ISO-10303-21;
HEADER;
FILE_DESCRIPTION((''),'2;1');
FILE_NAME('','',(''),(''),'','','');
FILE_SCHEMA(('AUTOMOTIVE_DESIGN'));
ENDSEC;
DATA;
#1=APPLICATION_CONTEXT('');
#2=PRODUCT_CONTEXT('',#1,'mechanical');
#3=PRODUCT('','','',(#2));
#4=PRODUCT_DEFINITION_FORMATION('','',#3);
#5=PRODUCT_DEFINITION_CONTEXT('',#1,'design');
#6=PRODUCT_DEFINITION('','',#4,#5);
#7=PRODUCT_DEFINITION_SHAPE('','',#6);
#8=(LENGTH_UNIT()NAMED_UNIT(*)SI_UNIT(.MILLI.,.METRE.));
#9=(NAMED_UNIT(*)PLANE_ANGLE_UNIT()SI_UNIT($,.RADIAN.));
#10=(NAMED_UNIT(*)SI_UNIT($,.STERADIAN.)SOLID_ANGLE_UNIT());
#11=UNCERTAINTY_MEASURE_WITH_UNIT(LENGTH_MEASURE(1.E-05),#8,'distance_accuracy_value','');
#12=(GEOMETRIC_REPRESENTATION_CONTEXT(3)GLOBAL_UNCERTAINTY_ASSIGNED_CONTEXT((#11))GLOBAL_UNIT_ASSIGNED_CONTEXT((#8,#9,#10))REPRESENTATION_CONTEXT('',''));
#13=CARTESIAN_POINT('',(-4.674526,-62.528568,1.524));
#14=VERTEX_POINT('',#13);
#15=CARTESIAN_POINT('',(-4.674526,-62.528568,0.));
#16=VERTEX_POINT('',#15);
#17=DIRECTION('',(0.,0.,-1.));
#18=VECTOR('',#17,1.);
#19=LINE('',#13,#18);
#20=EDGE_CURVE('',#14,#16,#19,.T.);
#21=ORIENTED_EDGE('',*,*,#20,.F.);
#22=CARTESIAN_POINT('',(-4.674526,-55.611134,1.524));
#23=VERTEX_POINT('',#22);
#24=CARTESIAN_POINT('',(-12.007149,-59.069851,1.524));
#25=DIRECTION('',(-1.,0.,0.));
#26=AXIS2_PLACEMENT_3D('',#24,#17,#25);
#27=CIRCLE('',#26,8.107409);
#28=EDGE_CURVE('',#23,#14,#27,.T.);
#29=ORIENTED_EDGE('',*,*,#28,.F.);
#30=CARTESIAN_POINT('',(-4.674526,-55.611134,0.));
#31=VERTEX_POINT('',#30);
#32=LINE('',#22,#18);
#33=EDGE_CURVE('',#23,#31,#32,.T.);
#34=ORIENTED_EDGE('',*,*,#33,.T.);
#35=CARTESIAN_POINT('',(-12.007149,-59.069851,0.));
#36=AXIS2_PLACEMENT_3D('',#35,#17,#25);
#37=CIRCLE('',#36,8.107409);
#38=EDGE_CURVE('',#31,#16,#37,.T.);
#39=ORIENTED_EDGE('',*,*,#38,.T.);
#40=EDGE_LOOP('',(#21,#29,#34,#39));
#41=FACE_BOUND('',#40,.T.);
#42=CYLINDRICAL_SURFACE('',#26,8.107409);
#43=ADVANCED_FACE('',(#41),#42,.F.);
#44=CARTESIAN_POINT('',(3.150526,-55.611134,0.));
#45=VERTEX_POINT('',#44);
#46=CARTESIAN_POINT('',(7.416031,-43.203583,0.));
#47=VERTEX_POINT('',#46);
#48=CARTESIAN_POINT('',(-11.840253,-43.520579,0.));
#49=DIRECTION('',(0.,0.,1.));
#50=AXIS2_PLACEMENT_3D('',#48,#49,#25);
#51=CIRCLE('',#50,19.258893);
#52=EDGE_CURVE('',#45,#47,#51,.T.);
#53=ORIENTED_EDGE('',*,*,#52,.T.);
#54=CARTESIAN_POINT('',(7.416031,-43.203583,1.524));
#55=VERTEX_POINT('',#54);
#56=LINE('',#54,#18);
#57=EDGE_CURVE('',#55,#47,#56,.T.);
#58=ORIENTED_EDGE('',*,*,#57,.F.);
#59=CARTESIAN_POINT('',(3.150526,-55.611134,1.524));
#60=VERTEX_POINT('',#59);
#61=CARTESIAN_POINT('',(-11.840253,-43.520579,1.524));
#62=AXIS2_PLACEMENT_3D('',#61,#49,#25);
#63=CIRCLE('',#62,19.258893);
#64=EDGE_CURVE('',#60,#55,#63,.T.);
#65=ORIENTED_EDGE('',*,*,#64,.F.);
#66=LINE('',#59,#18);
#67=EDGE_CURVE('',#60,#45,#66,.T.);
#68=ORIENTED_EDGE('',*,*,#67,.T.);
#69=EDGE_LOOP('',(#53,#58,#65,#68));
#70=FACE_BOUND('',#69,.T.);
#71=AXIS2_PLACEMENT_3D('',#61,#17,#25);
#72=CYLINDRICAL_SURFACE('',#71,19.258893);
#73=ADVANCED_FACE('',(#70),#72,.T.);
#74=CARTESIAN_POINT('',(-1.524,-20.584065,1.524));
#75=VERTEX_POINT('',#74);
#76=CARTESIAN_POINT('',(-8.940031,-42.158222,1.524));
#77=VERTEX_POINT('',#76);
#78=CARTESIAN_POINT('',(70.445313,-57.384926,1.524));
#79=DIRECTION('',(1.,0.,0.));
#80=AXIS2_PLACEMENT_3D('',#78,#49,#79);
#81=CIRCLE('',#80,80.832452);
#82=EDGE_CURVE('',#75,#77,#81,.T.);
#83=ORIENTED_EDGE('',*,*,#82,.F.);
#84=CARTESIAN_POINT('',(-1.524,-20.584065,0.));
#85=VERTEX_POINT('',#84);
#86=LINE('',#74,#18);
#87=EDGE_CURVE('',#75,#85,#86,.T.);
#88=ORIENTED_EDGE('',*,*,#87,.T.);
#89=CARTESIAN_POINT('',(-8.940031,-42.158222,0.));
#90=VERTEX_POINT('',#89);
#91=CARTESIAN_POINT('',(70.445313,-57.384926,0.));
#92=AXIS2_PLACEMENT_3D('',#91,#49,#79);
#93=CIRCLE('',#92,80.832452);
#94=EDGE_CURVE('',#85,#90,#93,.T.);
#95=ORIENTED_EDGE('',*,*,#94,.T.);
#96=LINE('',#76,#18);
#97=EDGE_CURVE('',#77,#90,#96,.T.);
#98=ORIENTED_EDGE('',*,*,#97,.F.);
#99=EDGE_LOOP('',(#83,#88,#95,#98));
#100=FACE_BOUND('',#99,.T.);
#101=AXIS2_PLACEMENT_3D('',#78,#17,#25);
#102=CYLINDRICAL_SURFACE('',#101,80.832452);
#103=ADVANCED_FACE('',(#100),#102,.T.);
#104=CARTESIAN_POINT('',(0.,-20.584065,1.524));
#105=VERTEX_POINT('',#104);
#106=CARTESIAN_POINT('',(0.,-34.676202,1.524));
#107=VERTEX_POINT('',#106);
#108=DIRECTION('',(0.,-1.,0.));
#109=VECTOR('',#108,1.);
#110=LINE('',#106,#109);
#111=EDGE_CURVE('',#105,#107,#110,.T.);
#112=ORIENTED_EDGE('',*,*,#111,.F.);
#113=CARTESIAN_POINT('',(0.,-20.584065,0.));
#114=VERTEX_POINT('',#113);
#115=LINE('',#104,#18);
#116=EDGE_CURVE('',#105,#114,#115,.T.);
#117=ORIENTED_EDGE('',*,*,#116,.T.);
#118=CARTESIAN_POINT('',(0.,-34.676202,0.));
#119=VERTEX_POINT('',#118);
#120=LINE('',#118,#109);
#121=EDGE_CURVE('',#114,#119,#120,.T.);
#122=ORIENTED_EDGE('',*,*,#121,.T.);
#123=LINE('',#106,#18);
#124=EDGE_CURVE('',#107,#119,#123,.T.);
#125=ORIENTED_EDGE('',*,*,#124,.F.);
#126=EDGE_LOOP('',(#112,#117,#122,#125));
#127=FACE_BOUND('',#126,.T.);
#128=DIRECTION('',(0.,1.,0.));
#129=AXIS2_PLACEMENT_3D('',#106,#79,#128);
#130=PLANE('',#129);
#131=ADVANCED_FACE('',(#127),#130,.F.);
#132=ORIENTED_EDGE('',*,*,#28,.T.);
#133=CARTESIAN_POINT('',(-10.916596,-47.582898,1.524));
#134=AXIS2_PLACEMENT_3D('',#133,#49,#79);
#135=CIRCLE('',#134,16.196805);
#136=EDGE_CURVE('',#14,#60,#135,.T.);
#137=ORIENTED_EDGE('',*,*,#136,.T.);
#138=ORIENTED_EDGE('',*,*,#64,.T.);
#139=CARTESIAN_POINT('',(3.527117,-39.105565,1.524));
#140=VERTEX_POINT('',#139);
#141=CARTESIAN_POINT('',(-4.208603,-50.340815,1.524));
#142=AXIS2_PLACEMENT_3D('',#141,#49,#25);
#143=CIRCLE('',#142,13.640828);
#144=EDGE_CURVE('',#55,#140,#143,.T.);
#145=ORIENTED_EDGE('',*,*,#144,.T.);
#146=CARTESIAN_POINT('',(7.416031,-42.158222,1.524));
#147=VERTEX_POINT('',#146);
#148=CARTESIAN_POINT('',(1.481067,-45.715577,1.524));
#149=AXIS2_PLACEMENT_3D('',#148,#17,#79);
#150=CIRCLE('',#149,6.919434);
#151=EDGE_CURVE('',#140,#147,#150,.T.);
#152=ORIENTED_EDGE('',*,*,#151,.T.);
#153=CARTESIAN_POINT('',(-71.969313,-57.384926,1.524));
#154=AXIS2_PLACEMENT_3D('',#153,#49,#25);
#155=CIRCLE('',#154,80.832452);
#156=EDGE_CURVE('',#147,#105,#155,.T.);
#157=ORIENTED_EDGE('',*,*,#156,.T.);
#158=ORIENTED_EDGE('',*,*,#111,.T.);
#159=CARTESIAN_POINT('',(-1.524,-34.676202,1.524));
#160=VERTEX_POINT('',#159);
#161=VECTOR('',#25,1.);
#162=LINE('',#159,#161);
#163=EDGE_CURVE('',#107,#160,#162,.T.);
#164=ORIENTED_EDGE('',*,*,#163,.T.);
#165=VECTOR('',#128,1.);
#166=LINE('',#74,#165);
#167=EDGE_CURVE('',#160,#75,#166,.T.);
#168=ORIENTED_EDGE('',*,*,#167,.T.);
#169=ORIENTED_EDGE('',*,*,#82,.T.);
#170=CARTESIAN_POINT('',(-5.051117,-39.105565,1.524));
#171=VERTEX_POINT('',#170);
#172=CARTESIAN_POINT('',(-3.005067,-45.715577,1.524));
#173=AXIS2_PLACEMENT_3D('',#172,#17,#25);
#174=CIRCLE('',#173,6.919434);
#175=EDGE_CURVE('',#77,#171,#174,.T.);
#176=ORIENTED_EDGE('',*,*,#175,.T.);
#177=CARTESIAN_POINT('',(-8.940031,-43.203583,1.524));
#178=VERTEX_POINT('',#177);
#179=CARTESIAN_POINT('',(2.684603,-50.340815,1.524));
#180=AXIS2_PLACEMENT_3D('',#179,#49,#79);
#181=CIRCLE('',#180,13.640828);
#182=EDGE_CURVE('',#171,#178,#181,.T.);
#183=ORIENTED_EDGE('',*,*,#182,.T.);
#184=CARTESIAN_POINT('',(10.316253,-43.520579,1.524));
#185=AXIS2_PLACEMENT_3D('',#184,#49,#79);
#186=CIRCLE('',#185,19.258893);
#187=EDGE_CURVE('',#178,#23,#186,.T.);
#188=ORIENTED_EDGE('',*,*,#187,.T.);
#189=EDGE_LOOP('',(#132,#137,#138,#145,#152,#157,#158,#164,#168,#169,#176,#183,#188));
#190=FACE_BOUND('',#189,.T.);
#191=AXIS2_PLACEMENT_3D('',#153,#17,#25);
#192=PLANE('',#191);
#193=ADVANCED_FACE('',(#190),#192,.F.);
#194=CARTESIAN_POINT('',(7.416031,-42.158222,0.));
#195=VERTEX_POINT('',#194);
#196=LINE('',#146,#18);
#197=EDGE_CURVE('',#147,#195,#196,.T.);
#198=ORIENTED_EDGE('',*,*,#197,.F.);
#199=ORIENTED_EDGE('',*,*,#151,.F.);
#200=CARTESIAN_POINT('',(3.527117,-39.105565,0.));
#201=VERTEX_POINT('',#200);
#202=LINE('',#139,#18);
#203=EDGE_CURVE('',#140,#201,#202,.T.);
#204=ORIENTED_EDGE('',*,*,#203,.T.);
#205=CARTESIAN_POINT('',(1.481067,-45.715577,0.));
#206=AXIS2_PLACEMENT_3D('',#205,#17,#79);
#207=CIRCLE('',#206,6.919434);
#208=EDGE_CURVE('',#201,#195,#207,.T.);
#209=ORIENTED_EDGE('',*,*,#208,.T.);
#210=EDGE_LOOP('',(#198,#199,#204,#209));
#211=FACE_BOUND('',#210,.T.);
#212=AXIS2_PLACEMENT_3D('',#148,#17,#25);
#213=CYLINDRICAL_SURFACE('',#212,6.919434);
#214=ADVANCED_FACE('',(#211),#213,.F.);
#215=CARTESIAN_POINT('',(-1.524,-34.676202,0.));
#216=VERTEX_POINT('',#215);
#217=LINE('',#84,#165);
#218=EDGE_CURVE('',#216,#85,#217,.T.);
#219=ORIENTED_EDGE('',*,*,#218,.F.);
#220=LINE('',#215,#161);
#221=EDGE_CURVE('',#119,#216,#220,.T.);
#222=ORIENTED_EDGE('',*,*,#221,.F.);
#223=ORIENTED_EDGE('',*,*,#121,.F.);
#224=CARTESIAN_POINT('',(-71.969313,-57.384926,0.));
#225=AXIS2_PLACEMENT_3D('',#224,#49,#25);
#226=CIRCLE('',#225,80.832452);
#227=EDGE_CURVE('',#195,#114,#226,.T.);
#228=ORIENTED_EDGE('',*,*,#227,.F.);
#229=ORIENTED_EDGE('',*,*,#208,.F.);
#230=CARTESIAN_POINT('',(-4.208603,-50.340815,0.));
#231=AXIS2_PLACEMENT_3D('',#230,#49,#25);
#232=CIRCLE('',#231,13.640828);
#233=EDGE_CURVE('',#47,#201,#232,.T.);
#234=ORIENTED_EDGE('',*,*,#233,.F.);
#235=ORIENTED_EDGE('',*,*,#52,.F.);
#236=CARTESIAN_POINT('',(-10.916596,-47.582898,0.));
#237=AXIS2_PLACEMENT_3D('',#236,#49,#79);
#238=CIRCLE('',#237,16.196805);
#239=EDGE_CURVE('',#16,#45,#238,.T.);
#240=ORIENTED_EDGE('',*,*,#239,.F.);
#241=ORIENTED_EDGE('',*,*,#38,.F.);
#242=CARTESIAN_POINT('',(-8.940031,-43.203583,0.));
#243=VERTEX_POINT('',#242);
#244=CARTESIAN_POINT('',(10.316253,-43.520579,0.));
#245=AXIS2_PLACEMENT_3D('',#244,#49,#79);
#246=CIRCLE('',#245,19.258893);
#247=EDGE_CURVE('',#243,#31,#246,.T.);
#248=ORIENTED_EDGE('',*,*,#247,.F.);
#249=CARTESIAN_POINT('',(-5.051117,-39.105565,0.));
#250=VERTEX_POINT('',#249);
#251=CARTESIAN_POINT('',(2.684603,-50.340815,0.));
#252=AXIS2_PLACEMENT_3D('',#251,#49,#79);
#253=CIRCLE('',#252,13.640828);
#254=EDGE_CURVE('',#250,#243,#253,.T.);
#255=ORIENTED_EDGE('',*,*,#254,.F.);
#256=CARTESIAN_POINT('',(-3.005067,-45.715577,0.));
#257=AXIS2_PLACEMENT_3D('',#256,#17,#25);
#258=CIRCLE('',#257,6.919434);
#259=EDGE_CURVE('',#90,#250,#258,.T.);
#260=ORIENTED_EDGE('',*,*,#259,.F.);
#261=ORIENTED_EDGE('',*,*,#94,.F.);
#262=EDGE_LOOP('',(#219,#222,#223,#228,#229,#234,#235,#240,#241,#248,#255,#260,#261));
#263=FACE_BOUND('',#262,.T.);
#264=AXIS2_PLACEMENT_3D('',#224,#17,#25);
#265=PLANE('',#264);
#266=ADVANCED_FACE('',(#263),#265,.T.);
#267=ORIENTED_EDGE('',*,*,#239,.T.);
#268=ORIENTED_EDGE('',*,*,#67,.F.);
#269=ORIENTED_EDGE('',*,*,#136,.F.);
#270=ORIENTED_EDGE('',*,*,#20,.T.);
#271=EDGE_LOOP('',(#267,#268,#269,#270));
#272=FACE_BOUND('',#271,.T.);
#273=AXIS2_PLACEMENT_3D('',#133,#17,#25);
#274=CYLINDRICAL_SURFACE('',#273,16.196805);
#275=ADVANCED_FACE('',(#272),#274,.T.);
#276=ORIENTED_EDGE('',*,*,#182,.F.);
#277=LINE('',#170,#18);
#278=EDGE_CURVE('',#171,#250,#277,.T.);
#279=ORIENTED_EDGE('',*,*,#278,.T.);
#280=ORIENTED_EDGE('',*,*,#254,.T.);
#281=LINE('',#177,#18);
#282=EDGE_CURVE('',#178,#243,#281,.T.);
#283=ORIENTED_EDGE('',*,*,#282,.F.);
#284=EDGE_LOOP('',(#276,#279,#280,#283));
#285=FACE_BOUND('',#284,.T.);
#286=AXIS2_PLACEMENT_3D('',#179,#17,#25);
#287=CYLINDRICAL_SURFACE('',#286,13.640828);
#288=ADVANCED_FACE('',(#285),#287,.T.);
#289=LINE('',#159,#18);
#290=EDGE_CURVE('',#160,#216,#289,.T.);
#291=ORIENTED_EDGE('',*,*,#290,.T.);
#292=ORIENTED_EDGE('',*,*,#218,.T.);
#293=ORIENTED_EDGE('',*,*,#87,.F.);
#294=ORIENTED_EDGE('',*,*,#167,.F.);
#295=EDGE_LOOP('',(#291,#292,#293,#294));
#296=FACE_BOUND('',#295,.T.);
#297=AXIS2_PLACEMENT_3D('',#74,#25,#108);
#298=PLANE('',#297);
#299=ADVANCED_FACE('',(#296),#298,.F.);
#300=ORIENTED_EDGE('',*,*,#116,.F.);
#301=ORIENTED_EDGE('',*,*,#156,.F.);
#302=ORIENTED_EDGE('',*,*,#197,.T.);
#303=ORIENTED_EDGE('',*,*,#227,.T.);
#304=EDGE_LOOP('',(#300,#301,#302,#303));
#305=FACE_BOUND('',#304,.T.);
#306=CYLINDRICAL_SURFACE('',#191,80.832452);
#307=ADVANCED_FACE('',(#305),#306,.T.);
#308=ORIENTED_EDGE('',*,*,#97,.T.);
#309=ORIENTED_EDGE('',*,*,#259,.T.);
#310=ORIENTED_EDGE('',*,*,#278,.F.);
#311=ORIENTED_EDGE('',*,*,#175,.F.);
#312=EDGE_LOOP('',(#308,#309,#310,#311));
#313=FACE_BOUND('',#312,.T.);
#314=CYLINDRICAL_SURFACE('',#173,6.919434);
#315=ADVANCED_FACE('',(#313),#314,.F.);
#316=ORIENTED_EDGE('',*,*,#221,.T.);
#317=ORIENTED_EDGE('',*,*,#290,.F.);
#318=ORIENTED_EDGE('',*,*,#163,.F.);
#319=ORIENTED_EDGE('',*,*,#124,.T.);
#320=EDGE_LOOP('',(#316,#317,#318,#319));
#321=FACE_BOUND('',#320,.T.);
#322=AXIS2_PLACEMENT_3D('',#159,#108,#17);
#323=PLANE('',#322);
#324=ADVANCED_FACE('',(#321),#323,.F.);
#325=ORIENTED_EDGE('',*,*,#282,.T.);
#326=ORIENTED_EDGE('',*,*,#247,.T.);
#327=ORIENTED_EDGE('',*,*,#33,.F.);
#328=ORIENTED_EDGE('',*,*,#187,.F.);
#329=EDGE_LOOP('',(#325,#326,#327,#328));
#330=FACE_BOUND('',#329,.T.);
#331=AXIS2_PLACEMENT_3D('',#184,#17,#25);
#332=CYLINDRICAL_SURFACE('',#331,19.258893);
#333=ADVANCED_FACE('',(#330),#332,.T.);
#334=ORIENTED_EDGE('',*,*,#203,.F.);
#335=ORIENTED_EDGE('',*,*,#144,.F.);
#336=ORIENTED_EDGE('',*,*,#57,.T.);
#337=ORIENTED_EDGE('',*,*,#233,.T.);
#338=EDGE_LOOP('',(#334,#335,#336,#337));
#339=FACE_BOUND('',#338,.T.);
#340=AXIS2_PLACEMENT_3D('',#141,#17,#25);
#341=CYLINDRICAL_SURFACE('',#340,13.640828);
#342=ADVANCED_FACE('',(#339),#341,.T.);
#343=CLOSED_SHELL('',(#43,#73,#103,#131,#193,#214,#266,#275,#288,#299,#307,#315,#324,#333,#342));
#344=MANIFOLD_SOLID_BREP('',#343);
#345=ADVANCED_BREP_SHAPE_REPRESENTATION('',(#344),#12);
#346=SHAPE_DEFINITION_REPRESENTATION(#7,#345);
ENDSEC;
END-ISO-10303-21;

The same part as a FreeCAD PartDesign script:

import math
import FreeCAD as App
import Part
import Sketcher
from FreeCAD import Vector
Q = App.Units.Quantity

doc = App.newDocument("Part")
body = doc.addObject("PartDesign::Body", "Body")

# Sketch on XY plane
sketch1 = doc.addObject("Sketcher::SketchObject", "Sketch")
body.addObject(sketch1)
sketch1.AttachmentSupport = (doc.XY_Plane, [""])
sketch1.MapMode = "FlatFace"
sketch1.addGeometry([
    Part.LineSegment(Vector(0, -34.7, 0), Vector(-1.5, -34.7, 0)),  # 0
    Part.LineSegment(Vector(-1.5, -34.7, 0), Vector(-1.5, -20.6, 0)),  # 1
    Part.ArcOfCircle(Part.Circle(Vector(70.4, -57.4, 0), Vector(0, 0, 1), 80.8), math.radians(152.92), math.radians(169.14)),  # 2
    Part.ArcOfCircle(Part.Circle(Vector(-3, -45.7, 0), Vector(0, 0, 1), 6.9), math.radians(107), math.radians(149)),  # 3
    Part.ArcOfCircle(Part.Circle(Vector(2.7, -50.3, 0), Vector(0, 0, 1), 13.6), math.radians(125), math.radians(148)),  # 4
    Part.ArcOfCircle(Part.Circle(Vector(10.3, -43.5, 0), Vector(0, 0, 1), 19.3), math.radians(179), math.radians(219)),  # 5
    Part.ArcOfCircle(Part.Circle(Vector(-12, -59.1, 0), Vector(0, 0, 1), 8.1), math.radians(-25), math.radians(25)),  # 6
    Part.ArcOfCircle(Part.Circle(Vector(-10.9, -47.6, 0), Vector(0, 0, 1), 16.2), math.radians(-67), math.radians(-30)),  # 7
    Part.ArcOfCircle(Part.Circle(Vector(-11.8, -43.5, 0), Vector(0, 0, 1), 19.3), math.radians(-39), math.radians(1)),  # 8
    Part.ArcOfCircle(Part.Circle(Vector(-4.2, -50.3, 0), Vector(0, 0, 1), 13.6), math.radians(32), math.radians(55)),  # 9
    Part.ArcOfCircle(Part.Circle(Vector(1.5, -45.7, 0), Vector(0, 0, 1), 6.9), math.radians(31), math.radians(73)),  # 10
    Part.ArcOfCircle(Part.Circle(Vector(-72, -57.4, 0), Vector(0, 0, 1), 80.8), math.radians(10.86), math.radians(27.08)),  # 11
    Part.LineSegment(Vector(0, -20.6, 0), Vector(0, -34.7, 0)),  # 12
], False)
sketch1.addConstraint([
    Sketcher.Constraint("Coincident", 0, 2, 1, 1),
    Sketcher.Constraint("Coincident", 1, 2, 2, 1),
    Sketcher.Constraint("Coincident", 2, 2, 3, 2),
    Sketcher.Constraint("Coincident", 3, 1, 4, 1),
    Sketcher.Constraint("Coincident", 4, 2, 5, 1),
    Sketcher.Constraint("Coincident", 5, 2, 6, 2),
    Sketcher.Constraint("Coincident", 6, 1, 7, 1),
    Sketcher.Constraint("Coincident", 7, 2, 8, 1),
    Sketcher.Constraint("Coincident", 8, 2, 9, 1),
    Sketcher.Constraint("Coincident", 9, 2, 10, 2),
    Sketcher.Constraint("Coincident", 10, 1, 11, 1),
    Sketcher.Constraint("Coincident", 11, 2, 12, 1),
    Sketcher.Constraint("Coincident", 12, 2, 0, 1),
    Sketcher.Constraint("Horizontal", 0),
    Sketcher.Constraint("Vertical", 1),
    Sketcher.Constraint("Vertical", 12),
    Sketcher.Constraint("Equal", 5, 8),
    Sketcher.Constraint("Equal", 4, 9),
    Sketcher.Constraint("Equal", 3, 10),
    Sketcher.Constraint("Equal", 2, 11),
    Sketcher.Constraint("PointOnObject", 11, 2, -2),
    Sketcher.Constraint("Horizontal", 5, 3, 8, 3),
    Sketcher.Constraint("Horizontal", 4, 3, 9, 3),
    Sketcher.Constraint("Horizontal", 3, 3, 10, 3),
    Sketcher.Constraint("Horizontal", 2, 3, 11, 3),
    Sketcher.Constraint("Horizontal", 5, 2, 7, 2),
    Sketcher.Constraint("Horizontal", 4, 2, 8, 2),
    Sketcher.Constraint("Horizontal", 3, 1, 9, 2),
    Sketcher.Constraint("Horizontal", 2, 2, 10, 1),
    Sketcher.Constraint("Horizontal", 1, 2, 11, 2),
    Sketcher.Constraint("Vertical", 2, 2, 4, 2),
    Sketcher.Constraint("Vertical", 5, 2, 6, 1),
    Sketcher.Constraint("DistanceX", 0, 2, 0, 1, Q("0.06 in")),
    Sketcher.Constraint("Radius", 2, 80.832452),
    Sketcher.Constraint("Radius", 6, 8.107409),
    Sketcher.Constraint("Radius", 3, 6.919434),
    Sketcher.Constraint("Radius", 4, 13.640828),
    Sketcher.Constraint("Radius", 5, 19.258893),
    Sketcher.Constraint("Radius", 7, 16.196805),
    Sketcher.Constraint("DistanceY", 7, 3, -1, 1, 47.582898),
    Sketcher.Constraint("DistanceY", 0, 2, -1, 1, 34.676202),
    Sketcher.Constraint("DistanceX", 6, 3, 5, 3, 22.323402),
    Sketcher.Constraint("DistanceX", 7, 3, 4, 3, 13.601199),
    Sketcher.Constraint("DistanceY", 9, 2, 11, 2, 18.5215),
    Sketcher.Constraint("DistanceY", 1, 1, 1, 2, 14.092137),
    Sketcher.Constraint("DistanceY", 5, 3, -1, 1, 43.520579),
    Sketcher.Constraint("DistanceX", 6, 3, -1, 1, 12.007149),
    Sketcher.Constraint("DistanceX", -1, 1, 8, 2, 7.416031),
    Sketcher.Constraint("DistanceX", 3, 3, 2, 3, 73.450379),
])
pad1 = doc.addObject("PartDesign::Pad", "Pad")
body.addObject(pad1)
pad1.Profile = sketch1
pad1.Length = Q("0.06 in")

doc.recompute()
